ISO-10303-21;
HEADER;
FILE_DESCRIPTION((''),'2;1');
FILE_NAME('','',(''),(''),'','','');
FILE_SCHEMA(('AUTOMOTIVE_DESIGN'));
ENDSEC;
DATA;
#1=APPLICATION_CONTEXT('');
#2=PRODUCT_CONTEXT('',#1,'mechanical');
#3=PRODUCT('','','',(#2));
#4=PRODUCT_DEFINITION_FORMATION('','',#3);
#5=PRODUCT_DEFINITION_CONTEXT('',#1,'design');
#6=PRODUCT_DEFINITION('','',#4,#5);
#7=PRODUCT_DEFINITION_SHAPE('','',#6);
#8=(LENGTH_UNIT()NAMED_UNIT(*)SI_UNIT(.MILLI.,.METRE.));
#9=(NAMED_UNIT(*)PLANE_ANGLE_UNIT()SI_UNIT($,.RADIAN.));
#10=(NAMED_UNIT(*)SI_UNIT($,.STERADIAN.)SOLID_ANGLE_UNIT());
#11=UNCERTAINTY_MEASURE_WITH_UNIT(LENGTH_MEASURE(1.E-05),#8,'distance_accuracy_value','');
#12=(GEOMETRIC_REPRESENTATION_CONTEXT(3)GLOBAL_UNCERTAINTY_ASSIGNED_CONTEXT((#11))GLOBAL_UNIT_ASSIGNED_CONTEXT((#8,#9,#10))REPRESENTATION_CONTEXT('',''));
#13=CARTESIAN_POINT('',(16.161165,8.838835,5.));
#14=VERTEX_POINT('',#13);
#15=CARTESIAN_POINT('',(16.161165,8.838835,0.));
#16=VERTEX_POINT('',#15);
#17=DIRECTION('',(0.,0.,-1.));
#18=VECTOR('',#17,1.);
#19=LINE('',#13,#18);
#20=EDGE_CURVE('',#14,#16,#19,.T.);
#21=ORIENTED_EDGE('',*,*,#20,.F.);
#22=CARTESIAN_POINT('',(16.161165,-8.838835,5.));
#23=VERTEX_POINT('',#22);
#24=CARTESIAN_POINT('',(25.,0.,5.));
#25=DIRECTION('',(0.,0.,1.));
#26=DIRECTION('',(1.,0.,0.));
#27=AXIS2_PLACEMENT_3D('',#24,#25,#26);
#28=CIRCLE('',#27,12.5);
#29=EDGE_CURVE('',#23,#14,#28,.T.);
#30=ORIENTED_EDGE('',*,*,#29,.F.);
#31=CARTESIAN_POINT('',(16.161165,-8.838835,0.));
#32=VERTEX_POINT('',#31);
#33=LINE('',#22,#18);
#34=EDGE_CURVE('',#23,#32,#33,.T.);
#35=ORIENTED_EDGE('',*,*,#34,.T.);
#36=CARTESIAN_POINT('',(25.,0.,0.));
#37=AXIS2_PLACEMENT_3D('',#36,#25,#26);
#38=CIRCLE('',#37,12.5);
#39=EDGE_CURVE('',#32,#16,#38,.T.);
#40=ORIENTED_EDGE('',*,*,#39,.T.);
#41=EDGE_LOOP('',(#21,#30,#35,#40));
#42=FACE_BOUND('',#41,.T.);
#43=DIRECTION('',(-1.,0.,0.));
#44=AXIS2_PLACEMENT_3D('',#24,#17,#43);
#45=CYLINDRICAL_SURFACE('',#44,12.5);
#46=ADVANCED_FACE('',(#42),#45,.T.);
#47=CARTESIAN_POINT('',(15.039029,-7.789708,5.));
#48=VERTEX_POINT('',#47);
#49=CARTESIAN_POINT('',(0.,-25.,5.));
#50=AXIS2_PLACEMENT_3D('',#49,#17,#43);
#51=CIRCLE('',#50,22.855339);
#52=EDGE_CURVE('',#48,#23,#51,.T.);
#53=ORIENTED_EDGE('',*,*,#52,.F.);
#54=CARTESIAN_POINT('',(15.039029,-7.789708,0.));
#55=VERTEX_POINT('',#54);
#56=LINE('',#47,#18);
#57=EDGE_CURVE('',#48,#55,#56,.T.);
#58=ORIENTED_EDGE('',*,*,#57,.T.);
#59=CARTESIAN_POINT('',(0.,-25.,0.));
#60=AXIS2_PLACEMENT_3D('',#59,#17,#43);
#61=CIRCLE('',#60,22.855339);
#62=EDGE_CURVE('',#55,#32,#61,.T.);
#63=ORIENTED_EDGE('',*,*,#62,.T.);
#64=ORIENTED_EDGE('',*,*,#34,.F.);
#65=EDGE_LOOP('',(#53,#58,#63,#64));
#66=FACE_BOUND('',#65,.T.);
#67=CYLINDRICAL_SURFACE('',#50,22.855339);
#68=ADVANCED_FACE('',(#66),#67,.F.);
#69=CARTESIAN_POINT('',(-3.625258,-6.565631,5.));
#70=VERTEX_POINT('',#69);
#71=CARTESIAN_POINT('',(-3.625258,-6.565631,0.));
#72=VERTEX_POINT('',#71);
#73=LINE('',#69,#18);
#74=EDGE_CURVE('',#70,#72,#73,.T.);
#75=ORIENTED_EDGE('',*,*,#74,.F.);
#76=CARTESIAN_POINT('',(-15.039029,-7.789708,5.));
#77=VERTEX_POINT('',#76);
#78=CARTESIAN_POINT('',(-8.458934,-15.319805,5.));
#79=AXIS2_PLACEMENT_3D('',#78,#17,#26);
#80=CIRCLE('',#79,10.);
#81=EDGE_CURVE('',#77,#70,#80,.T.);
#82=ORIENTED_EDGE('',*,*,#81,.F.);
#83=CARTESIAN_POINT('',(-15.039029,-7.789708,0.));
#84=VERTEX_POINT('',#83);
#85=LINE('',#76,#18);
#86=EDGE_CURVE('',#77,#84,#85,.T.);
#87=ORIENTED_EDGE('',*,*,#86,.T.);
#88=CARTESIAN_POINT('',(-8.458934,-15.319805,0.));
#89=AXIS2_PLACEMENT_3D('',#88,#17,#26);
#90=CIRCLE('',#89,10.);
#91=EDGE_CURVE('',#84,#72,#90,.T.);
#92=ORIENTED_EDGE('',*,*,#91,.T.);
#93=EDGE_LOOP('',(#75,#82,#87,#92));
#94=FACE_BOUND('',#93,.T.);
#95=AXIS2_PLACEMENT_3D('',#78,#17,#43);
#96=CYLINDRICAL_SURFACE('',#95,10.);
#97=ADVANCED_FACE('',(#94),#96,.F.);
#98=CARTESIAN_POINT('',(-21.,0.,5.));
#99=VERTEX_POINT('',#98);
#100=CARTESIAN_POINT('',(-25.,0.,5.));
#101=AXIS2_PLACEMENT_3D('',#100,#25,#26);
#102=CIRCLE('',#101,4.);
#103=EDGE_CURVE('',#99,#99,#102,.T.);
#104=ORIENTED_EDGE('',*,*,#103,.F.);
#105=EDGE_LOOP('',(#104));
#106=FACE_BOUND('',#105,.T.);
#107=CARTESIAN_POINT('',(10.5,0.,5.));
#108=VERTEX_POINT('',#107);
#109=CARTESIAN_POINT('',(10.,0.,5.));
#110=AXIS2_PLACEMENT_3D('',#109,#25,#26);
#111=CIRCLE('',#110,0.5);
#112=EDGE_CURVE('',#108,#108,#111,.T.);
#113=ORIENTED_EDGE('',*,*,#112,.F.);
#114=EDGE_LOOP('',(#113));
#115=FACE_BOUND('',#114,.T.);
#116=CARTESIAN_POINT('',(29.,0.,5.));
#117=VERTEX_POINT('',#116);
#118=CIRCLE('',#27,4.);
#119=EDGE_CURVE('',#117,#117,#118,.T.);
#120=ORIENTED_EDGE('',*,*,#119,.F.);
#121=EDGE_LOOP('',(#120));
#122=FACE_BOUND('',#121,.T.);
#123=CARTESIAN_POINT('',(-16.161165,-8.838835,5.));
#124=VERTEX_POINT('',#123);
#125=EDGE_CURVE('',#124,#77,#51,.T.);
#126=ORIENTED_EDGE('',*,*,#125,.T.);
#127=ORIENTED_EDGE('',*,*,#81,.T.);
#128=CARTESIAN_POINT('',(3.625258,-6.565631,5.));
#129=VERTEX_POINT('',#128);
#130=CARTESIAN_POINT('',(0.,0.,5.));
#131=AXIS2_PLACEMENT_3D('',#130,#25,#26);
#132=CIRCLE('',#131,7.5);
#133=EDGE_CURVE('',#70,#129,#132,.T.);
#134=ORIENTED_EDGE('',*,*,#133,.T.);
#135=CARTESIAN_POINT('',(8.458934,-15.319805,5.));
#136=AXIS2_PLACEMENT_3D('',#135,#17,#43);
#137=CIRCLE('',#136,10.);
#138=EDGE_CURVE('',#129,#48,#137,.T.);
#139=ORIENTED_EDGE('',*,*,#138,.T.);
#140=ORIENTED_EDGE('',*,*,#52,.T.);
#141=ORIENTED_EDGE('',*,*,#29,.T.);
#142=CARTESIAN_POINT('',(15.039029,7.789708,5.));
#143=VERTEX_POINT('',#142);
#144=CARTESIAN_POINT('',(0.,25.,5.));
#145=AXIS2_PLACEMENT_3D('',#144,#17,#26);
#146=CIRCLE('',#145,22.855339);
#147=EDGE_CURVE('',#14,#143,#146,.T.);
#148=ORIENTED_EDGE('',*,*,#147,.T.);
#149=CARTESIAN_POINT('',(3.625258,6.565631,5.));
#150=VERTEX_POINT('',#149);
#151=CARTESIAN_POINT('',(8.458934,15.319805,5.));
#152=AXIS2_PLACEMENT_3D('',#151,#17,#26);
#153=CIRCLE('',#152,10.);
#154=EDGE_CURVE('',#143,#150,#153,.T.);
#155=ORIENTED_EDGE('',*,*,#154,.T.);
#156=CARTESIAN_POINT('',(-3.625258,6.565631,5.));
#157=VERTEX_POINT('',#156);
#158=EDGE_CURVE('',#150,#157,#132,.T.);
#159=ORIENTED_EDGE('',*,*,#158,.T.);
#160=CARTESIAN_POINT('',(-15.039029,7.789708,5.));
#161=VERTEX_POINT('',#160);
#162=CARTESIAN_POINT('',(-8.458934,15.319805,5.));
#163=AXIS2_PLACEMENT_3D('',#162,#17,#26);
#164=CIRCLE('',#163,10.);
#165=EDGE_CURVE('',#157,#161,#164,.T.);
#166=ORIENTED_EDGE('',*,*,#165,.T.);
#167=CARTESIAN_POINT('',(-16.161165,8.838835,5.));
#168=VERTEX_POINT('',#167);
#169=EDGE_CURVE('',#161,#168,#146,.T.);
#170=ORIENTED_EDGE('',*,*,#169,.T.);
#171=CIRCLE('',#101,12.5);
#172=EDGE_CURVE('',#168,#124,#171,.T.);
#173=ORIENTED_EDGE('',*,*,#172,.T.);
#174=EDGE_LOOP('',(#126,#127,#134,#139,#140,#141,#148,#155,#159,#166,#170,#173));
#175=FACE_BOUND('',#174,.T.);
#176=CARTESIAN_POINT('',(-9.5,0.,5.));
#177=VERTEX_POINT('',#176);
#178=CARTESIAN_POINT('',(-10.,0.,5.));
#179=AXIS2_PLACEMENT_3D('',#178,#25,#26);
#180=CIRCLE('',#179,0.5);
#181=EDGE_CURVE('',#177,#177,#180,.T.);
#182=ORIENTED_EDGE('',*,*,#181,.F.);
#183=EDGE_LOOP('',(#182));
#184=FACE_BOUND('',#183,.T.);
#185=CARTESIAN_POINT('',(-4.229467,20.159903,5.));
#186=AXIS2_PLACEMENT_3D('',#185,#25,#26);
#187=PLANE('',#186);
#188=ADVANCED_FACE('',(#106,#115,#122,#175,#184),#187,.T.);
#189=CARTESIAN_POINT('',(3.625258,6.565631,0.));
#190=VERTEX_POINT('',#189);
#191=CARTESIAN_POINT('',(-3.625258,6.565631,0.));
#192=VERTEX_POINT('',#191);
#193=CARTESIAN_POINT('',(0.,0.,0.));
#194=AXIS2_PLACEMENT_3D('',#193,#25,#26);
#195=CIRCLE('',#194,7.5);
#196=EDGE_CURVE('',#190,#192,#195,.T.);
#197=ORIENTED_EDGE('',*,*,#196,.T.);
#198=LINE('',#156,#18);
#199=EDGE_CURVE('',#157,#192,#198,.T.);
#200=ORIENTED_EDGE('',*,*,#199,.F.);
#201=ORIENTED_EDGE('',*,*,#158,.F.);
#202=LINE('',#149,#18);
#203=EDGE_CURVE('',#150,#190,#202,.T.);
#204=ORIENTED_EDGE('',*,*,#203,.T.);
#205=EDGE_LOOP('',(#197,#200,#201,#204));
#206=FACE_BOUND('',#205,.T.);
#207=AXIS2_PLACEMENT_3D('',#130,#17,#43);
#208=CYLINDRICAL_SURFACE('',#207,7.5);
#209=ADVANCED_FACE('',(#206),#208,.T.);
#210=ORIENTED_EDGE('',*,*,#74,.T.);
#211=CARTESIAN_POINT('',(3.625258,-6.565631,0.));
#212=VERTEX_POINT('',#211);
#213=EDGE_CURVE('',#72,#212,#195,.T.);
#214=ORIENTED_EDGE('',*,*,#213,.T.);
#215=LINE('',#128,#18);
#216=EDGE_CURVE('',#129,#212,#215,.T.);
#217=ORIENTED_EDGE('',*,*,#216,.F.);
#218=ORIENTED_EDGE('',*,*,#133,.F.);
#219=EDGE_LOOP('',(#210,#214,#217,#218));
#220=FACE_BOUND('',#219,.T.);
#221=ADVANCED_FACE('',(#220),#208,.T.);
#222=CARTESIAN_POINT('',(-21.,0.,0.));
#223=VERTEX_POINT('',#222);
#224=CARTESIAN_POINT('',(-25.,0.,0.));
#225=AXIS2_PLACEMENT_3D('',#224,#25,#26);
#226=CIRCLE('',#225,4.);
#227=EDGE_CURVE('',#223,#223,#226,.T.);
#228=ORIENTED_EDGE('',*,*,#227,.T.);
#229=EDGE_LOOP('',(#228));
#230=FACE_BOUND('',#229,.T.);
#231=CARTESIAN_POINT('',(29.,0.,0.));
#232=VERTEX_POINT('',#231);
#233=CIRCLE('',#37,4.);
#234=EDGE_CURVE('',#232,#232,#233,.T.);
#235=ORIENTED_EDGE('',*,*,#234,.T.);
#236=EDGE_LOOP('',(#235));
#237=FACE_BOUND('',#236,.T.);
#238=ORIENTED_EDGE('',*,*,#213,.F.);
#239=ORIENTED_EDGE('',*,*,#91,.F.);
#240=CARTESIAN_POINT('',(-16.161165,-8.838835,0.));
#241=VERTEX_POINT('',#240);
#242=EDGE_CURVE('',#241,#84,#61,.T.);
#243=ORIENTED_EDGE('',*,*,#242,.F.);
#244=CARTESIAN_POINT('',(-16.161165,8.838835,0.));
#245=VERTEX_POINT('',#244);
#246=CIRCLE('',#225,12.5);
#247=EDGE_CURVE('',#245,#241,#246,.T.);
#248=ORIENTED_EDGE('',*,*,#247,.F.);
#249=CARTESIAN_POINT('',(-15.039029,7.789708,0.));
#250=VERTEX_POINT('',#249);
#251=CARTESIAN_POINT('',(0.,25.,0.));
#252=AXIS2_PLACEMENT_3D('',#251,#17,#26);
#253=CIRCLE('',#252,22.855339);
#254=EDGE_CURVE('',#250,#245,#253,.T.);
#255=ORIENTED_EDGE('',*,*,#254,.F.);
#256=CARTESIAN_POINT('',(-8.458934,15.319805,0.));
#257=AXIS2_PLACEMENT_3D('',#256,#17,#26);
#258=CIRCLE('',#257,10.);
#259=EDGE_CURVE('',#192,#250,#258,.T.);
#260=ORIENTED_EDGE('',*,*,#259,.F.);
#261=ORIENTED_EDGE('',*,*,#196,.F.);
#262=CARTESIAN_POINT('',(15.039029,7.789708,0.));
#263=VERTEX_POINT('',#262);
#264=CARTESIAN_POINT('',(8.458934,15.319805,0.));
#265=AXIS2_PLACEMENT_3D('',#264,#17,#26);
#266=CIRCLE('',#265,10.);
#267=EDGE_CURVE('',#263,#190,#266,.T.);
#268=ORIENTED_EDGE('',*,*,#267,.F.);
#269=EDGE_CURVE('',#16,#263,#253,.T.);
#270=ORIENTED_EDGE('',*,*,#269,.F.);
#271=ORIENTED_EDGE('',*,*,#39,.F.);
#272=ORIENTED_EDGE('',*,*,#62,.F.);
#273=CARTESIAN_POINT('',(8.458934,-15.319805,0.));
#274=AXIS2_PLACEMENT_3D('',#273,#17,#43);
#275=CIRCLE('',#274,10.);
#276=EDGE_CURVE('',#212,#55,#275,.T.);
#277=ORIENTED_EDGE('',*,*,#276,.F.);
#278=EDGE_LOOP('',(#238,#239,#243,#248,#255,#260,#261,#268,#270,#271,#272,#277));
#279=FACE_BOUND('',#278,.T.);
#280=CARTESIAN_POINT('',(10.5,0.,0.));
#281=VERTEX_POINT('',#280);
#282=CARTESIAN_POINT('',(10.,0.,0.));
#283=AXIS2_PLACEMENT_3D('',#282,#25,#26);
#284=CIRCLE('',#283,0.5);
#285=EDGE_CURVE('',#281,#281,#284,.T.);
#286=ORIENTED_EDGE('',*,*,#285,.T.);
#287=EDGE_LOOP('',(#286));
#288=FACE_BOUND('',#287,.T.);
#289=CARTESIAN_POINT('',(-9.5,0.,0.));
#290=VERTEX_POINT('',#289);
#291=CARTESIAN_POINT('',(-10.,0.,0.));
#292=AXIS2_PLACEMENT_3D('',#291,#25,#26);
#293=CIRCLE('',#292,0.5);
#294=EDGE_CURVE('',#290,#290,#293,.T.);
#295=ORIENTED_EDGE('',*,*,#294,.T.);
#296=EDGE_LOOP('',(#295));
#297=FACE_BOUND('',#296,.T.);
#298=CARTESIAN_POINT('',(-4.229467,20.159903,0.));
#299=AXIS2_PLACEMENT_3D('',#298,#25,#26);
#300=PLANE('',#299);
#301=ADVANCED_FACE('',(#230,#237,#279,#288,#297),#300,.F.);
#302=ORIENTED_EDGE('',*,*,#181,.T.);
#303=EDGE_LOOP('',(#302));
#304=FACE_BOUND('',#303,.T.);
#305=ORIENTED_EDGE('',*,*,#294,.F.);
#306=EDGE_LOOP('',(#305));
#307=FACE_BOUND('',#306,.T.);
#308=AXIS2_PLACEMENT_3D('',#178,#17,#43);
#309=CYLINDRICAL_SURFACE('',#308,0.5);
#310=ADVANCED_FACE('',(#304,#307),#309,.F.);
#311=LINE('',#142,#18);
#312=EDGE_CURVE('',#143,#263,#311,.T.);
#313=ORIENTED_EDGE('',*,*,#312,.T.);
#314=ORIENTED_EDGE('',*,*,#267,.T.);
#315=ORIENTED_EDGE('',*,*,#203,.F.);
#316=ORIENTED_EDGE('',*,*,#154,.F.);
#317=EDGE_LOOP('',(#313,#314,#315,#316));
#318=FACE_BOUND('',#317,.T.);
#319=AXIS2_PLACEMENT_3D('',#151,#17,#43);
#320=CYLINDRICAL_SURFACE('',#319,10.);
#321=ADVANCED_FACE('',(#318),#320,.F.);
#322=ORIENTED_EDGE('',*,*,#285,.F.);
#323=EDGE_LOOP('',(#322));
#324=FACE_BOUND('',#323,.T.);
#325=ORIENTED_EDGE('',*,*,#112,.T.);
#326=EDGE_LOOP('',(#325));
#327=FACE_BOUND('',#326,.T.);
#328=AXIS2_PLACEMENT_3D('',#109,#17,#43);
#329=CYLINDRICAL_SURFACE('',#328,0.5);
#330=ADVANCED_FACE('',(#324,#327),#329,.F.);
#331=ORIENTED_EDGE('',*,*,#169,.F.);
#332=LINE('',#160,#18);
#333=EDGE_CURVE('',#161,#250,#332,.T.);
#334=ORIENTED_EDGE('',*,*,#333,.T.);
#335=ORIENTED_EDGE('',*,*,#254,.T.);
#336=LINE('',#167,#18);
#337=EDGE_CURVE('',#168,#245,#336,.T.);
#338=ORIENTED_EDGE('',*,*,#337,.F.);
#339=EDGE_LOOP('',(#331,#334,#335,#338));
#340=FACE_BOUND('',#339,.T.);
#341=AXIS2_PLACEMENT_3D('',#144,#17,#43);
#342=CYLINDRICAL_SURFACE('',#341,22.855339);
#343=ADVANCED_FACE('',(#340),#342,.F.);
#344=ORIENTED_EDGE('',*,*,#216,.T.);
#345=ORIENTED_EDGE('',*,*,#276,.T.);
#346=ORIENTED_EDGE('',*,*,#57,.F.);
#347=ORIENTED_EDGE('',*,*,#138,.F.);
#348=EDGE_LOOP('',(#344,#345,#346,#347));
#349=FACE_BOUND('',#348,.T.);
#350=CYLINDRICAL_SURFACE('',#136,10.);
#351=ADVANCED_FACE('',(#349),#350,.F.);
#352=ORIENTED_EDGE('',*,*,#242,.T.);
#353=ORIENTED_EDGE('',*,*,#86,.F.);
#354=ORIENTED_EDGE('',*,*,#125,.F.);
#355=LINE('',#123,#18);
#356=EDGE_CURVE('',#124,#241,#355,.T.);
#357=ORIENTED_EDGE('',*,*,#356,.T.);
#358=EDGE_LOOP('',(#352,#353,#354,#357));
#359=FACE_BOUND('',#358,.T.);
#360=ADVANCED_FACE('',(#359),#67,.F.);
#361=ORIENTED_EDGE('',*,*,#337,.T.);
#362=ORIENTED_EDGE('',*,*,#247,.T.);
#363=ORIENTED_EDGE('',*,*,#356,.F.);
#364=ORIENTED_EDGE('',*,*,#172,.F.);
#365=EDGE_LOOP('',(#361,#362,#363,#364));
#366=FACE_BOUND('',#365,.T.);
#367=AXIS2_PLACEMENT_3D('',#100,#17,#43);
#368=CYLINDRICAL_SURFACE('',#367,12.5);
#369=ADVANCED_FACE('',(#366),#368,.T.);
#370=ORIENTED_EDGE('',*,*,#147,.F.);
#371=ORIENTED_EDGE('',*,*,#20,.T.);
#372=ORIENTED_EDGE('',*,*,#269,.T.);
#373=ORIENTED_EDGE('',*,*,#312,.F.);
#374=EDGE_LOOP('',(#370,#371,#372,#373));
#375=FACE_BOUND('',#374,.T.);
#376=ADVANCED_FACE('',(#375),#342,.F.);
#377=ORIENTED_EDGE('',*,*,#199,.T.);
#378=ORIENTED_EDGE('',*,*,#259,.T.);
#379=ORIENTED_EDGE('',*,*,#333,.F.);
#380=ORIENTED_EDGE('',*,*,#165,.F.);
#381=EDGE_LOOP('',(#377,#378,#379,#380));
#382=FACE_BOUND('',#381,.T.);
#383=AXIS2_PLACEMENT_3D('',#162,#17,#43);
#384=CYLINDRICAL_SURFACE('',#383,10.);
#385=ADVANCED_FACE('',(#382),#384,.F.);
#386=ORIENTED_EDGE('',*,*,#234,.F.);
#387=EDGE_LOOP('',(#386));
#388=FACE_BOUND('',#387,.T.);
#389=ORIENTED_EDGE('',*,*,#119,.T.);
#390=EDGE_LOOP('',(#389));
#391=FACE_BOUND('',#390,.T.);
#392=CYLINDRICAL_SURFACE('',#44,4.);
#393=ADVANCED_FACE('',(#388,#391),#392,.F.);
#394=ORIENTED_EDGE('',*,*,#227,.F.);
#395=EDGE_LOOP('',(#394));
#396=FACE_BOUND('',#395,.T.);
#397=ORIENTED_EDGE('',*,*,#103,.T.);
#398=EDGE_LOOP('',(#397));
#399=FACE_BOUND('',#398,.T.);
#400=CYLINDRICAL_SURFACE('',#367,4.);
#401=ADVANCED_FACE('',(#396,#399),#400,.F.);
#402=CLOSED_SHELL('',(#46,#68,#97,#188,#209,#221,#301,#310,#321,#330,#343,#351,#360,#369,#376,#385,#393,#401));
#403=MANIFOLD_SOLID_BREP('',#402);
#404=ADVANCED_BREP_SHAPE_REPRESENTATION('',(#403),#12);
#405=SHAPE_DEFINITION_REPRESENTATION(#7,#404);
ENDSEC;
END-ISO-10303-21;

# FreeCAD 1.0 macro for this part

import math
import FreeCAD as App
import Part
import Sketcher
from FreeCAD import Vector

doc = App.newDocument("Part")
body = doc.addObject("PartDesign::Body", "Body")

sketch1 = body.newObject("Sketcher::SketchObject", "Sketch")
sketch1.AttachmentSupport = (doc.getObject("XY_Plane"), [""])
sketch1.MapMode = "FlatFace"
sketch1.addGeometry([
    Part.ArcOfCircle(Part.Circle(Vector(-25, 0, 0), Vector(0, 0, 1), 12.5), math.radians(45), math.radians(315)),
    Part.ArcOfCircle(Part.Circle(Vector(0, -25, 0), Vector(0, 0, 1), 22.9), math.radians(131.15), math.radians(135)),
    Part.ArcOfCircle(Part.Circle(Vector(-8.5, -15.3, 0), Vector(0, 0, 1), 10), math.radians(61), math.radians(131)),
    Part.ArcOfCircle(Part.Circle(Vector(0, 0, 0), Vector(0, 0, 1), 7.5), math.radians(-119), math.radians(-61)),
    Part.ArcOfCircle(Part.Circle(Vector(8.5, -15.3, 0), Vector(0, 0, 1), 10), math.radians(49), math.radians(119)),
    Part.ArcOfCircle(Part.Circle(Vector(0, -25, 0), Vector(0, 0, 1), 22.9), math.radians(45), math.radians(48.85)),
    Part.ArcOfCircle(Part.Circle(Vector(25, 0, 0), Vector(0, 0, 1), 12.5), math.radians(-135), math.radians(135)),
    Part.ArcOfCircle(Part.Circle(Vector(0, 25, 0), Vector(0, 0, 1), 22.9), math.radians(-48.85), math.radians(-45)),
    Part.ArcOfCircle(Part.Circle(Vector(8.5, 15.3, 0), Vector(0, 0, 1), 10), math.radians(-119), math.radians(-49)),
    Part.ArcOfCircle(Part.Circle(Vector(0, 0, 0), Vector(0, 0, 1), 7.5), math.radians(61), math.radians(119)),
    Part.ArcOfCircle(Part.Circle(Vector(-8.5, 15.3, 0), Vector(0, 0, 1), 10), math.radians(-131), math.radians(-61)),
    Part.ArcOfCircle(Part.Circle(Vector(0, 25, 0), Vector(0, 0, 1), 22.9), math.radians(-135), math.radians(-131.15)),
    Part.Circle(Vector(-25, 0, 0), Vector(0, 0, 1), 4),
    Part.Circle(Vector(-10, 0, 0), Vector(0, 0, 1), 0.5),
    Part.Circle(Vector(10, 0, 0), Vector(0, 0, 1), 0.5),
    Part.Circle(Vector(25, 0, 0), Vector(0, 0, 1), 4),
], False)
sketch1.addConstraint([
    Sketcher.Constraint("Tangent", 0, 2, 1, 2),
    Sketcher.Constraint("Tangent", 1, 1, 2, 2),
    Sketcher.Constraint("Tangent", 2, 1, 3, 1),
    Sketcher.Constraint("Tangent", 3, 2, 4, 2),
    Sketcher.Constraint("Tangent", 4, 1, 5, 2),
    Sketcher.Constraint("Tangent", 5, 1, 6, 1),
    Sketcher.Constraint("Tangent", 6, 2, 7, 2),
    Sketcher.Constraint("Tangent", 7, 1, 8, 2),
    Sketcher.Constraint("Tangent", 8, 1, 9, 1),
    Sketcher.Constraint("Tangent", 9, 2, 10, 2),
    Sketcher.Constraint("Tangent", 10, 1, 11, 2),
    Sketcher.Constraint("Tangent", 11, 1, 0, 1),
    Sketcher.Constraint("Coincident", 3, 3, -1, 1),
    Sketcher.Constraint("Coincident", 9, 3, -1, 1),
    Sketcher.Constraint("Coincident", 5, 3, 1, 3),
    Sketcher.Constraint("Coincident", 11, 3, 7, 3),
    Sketcher.Constraint("Coincident", 12, 3, 0, 3),
    Sketcher.Constraint("Coincident", 15, 3, 6, 3),
    Sketcher.Constraint("Equal", 2, 4),
    Sketcher.Constraint("Equal", 1, 5),
    Sketcher.Constraint("Equal", 0, 6),
    Sketcher.Constraint("Equal", 5, 7),
    Sketcher.Constraint("Equal", 4, 8),
    Sketcher.Constraint("Equal", 3, 9),
    Sketcher.Constraint("Equal", 8, 10),
    Sketcher.Constraint("Equal", 7, 11),
    Sketcher.Constraint("Equal", 13, 14),
    Sketcher.Constraint("Equal", 12, 15),
    Sketcher.Constraint("Symmetric", 0, 3, 6, 3, -1, 1),
    Sketcher.Constraint("Symmetric", 13, 3, 14, 3, -1, 1),
    Sketcher.Constraint("PointOnObject", 0, 3, -1),
    Sketcher.Constraint("PointOnObject", 13, 3, -1),
    Sketcher.Constraint("Diameter", 12, 8.0),
    Sketcher.Constraint("Diameter", 13, 1.0),
    Sketcher.Constraint("Radius", 2, 10.0),
    Sketcher.Constraint("Radius", 0, 12.5),
    Sketcher.Constraint("Radius", 3, 7.5),
    Sketcher.Constraint("DistanceX", 0, 3, -1, 1, 25.0),
    Sketcher.Constraint("DistanceY", 1, 3, -1, 1, 25.0),
    Sketcher.Constraint("DistanceX", 13, 3, -1, 1, 10.0),
])
pad1 = body.newObject("PartDesign::Pad", "Pad")
pad1.Profile = sketch1
pad1.Length = 5

doc.recompute()
